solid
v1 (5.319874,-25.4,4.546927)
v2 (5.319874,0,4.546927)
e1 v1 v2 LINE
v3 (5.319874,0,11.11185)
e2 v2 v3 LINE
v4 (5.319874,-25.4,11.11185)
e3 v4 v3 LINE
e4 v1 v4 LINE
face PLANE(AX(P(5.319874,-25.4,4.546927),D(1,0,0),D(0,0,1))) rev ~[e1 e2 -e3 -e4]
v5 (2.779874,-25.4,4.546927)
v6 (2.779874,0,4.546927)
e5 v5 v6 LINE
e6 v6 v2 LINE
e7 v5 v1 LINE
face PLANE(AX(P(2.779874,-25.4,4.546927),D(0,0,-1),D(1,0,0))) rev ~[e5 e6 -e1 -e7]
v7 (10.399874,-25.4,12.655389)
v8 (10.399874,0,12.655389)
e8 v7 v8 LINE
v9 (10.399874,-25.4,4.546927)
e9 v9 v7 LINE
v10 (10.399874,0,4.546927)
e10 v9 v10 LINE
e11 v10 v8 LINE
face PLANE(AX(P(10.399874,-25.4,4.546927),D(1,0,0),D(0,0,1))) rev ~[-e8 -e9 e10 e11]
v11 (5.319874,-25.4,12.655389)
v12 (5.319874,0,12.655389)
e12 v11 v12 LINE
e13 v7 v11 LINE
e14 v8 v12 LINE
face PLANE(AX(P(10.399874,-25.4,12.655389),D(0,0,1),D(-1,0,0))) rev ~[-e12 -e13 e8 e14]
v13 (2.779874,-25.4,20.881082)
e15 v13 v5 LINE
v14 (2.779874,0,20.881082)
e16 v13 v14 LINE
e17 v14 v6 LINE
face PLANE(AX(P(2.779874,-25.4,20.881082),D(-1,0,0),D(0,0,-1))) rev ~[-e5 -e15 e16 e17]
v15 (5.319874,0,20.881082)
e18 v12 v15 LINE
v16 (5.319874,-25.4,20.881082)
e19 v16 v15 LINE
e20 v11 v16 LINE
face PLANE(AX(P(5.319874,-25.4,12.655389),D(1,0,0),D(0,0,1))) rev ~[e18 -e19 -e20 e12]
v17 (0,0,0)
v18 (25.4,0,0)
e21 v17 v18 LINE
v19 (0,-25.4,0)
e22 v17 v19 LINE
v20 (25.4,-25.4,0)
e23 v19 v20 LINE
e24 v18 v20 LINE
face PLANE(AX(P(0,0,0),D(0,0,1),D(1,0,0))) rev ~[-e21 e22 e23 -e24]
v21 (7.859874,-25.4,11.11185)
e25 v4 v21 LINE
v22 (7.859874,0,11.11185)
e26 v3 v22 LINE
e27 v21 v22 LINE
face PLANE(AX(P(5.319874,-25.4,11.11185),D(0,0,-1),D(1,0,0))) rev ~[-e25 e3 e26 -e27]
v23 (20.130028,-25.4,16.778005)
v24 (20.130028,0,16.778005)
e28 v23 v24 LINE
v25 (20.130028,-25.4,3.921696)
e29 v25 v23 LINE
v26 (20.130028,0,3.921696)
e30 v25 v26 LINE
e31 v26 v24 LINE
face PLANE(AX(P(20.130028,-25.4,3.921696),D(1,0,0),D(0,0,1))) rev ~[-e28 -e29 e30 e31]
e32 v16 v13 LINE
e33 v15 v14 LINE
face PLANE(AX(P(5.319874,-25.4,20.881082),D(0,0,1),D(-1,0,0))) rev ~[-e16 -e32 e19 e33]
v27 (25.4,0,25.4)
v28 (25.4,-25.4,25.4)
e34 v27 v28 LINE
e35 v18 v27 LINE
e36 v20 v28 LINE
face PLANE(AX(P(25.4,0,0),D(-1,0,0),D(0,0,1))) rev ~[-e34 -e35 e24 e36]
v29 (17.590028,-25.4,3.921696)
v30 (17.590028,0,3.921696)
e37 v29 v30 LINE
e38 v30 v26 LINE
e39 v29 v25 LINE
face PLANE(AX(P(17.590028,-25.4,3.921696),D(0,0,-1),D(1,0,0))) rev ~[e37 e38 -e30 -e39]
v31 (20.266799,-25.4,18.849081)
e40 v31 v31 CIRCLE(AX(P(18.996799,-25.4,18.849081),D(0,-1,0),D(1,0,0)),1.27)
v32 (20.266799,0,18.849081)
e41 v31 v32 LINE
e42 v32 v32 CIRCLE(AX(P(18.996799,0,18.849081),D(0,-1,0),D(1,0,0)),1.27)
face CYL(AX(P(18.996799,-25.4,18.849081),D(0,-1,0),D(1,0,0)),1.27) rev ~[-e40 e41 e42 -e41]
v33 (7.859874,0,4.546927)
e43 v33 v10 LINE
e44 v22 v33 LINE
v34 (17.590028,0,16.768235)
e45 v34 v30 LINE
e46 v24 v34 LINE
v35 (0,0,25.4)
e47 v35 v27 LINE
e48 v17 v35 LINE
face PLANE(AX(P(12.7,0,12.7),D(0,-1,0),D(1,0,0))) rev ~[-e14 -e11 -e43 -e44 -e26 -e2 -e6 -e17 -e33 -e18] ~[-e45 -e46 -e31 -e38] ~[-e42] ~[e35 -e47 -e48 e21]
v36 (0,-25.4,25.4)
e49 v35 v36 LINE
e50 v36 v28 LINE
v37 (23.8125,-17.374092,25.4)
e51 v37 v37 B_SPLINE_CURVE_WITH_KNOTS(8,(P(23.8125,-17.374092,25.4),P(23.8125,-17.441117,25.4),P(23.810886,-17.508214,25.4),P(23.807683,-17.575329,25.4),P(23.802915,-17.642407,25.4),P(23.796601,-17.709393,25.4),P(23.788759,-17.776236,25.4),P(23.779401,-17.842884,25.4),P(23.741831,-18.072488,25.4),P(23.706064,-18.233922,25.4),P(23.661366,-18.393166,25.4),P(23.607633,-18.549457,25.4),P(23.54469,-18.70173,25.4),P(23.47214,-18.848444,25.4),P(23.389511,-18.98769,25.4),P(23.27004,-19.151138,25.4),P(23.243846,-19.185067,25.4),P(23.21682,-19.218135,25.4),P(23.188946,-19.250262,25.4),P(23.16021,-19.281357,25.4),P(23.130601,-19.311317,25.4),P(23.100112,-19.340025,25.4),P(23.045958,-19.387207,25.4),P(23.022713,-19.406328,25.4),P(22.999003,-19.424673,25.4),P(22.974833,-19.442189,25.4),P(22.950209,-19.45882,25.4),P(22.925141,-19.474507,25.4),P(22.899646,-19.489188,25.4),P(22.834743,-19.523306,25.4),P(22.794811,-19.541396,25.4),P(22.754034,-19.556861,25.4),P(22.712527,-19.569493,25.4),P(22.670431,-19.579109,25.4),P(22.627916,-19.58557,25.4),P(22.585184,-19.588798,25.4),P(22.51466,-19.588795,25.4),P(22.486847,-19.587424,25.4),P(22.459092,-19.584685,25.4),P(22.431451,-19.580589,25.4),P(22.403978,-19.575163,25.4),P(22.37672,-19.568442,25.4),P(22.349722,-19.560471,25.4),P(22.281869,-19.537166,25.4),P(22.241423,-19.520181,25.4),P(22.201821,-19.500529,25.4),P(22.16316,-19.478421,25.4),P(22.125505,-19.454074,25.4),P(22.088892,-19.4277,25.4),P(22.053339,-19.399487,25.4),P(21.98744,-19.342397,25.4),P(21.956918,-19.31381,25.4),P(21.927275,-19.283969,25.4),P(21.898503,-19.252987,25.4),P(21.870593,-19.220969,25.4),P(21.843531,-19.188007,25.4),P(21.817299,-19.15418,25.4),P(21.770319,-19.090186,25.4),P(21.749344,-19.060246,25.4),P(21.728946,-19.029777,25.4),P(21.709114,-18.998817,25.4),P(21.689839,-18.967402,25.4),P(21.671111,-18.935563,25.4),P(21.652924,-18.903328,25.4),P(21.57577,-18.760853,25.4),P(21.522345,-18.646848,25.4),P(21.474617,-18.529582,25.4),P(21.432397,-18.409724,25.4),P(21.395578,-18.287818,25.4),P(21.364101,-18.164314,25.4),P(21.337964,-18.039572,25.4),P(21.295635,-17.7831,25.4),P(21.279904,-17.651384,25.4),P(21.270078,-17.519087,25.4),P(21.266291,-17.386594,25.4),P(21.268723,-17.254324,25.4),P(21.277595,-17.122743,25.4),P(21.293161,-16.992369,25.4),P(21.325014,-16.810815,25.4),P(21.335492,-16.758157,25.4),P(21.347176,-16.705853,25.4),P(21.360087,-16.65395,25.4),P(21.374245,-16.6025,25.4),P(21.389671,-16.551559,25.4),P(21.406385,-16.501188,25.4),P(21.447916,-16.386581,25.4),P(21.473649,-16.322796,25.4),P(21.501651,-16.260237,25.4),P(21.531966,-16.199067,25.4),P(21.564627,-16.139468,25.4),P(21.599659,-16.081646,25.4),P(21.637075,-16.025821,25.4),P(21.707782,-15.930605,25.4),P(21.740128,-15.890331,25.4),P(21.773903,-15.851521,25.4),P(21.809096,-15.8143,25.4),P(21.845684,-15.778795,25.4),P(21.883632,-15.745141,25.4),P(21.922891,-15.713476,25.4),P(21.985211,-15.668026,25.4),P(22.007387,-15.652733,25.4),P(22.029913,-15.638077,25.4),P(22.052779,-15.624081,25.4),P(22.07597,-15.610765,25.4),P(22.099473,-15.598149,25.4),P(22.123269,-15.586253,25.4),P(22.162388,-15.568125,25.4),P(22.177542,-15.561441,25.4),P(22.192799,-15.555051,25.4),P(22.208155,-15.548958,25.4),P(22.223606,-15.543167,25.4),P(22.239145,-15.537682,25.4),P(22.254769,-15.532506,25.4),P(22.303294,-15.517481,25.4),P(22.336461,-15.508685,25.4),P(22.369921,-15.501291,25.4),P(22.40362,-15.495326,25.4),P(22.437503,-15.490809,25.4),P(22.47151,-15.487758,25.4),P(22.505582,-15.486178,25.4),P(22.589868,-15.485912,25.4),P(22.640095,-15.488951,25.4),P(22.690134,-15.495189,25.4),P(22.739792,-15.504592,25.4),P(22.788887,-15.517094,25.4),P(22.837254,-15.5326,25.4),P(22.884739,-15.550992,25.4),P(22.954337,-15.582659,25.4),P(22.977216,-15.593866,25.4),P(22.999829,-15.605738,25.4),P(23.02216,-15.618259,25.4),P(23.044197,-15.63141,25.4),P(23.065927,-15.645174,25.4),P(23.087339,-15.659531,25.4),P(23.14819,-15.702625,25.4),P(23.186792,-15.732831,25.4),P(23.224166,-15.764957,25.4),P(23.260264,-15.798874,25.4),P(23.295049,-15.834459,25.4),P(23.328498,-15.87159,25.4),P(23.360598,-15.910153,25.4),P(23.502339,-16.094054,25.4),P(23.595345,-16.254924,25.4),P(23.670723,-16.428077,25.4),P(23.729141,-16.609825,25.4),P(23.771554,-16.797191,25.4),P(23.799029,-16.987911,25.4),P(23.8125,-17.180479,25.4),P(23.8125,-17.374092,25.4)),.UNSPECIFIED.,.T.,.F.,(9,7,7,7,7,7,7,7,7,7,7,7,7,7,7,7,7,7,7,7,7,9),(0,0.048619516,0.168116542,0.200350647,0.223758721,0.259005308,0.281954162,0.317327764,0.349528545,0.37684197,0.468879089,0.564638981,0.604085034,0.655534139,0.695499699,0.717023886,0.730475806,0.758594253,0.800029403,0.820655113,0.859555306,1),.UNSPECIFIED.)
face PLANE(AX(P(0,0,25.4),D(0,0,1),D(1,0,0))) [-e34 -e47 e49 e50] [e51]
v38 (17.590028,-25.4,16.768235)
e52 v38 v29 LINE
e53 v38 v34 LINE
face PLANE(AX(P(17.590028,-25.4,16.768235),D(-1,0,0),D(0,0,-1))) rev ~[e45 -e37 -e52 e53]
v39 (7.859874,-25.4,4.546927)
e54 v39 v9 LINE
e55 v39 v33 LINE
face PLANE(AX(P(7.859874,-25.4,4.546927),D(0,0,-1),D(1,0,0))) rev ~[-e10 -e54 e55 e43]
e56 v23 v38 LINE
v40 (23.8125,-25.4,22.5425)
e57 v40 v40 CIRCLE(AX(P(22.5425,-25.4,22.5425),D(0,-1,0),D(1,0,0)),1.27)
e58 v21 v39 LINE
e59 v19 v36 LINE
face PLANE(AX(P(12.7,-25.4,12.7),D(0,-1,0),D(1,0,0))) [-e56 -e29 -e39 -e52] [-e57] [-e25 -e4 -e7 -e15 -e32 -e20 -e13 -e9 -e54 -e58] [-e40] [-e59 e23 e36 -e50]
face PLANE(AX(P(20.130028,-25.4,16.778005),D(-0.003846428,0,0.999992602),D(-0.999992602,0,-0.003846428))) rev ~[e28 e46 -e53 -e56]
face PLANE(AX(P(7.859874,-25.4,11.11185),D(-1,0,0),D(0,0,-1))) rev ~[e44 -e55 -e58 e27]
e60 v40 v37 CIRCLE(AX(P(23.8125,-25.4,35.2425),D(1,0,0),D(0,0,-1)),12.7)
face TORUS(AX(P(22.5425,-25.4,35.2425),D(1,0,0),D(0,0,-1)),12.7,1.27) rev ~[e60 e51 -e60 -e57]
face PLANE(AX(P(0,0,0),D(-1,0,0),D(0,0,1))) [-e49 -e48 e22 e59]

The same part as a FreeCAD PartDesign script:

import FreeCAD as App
import Part
import Sketcher
Q = App.Units.Quantity


def add_polygon(sketch, points):
    """Adds a closed chain of lines whose ends are joined by coincident constraints."""
    first, n = sketch.GeometryCount, len(points)
    for a, b in zip(points, points[1:] + points[:1]):
        sketch.addGeometry(Part.LineSegment(App.Vector(*a, 0), App.Vector(*b, 0)), False)
    for i in range(n):
        sketch.addConstraint(Sketcher.Constraint("Coincident", first + i, 2, first + (i + 1) % n, 1))

doc = App.newDocument("Part")
body = doc.addObject("PartDesign::Body", "Body")

# Sketch on XZ plane
sketch1 = body.newObject("Sketcher::SketchObject", "Sketch")
sketch1.AttachmentSupport = (doc.getObject("XZ_Plane"), [""])
sketch1.MapMode = "FlatFace"
add_polygon(sketch1, [(0, 25), (0, 0), (25, 0), (25, 25)])  # lines 0-3
sketch1.addConstraint([
    Sketcher.Constraint("Vertical", 0),
    Sketcher.Constraint("Horizontal", 1),
    Sketcher.Constraint("Vertical", 2),
    Sketcher.Constraint("Horizontal", 3),
    Sketcher.Constraint("Coincident", 0, 2, -1, 1),
    Sketcher.Constraint("Equal", 3, 0),
    Sketcher.Constraint("DistanceX", 1, 1, 1, 2, Q("1 in")),
])
pad1 = body.newObject("PartDesign::Pad", "Pad")
pad1.Profile = sketch1
pad1.Length = Q("1 in")

# Sketch on XZ plane
sketch2 = body.newObject("Sketcher::SketchObject", "Sketch001")
sketch2.AttachmentSupport = (doc.getObject("XZ_Plane"), [""])
sketch2.MapMode = "FlatFace"
sketch2.AttachmentOffset = App.Placement(App.Vector(0, 0, 1 * 25.4), App.Rotation())
add_polygon(sketch2, [(10.4, 12.7), (5.3, 12.7), (5.3, 20.9), (2.8, 20.9), (2.8, 4.5), (5.3, 4.5), (5.3, 11.1), (7.9, 11.1), (7.9, 4.5), (10.4, 4.5)])  # lines 0-9
add_polygon(sketch2, [(20.1, 16.8), (17.6, 16.8), (17.6, 3.9), (20.1, 3.9)])  # lines 10-13
sketch2.addGeometry(Part.Circle(App.Vector(19, 18.8, 0), App.Vector(0, 0, 1), 1.3), False)  # 14
sketch2.addConstraint([
    Sketcher.Constraint("Horizontal", 0),
    Sketcher.Constraint("Vertical", 1),
    Sketcher.Constraint("Horizontal", 2),
    Sketcher.Constraint("Vertical", 3),
    Sketcher.Constraint("Horizontal", 4),
    Sketcher.Constraint("Vertical", 5),
    Sketcher.Constraint("Horizontal", 6),
    Sketcher.Constraint("Vertical", 7),
    Sketcher.Constraint("Horizontal", 8),
    Sketcher.Constraint("Vertical", 9),
    Sketcher.Constraint("Vertical", 11),
    Sketcher.Constraint("Horizontal", 12),
    Sketcher.Constraint("Vertical", 13),
    Sketcher.Constraint("Horizontal", 4, 2, 7, 2),
    Sketcher.Constraint("Vertical", 1, 2, 4, 2),
    Sketcher.Constraint("Equal", 4, 6),
    Sketcher.Constraint("Equal", 6, 8),
    Sketcher.Constraint("Equal", 8, 12),
    Sketcher.Constraint("Diameter", 14, Q("0.1 in")),
    Sketcher.Constraint("DistanceX", 0, 2, 0, 1, Q("0.2 in")),
    Sketcher.Constraint("DistanceY", 14, 3, 1, 2, Q("0.08 in")),
    Sketcher.Constraint("DistanceY", 11, 2, 11, 1, Q("12.846539 mm")),
    Sketcher.Constraint("DistanceY", 13, 1, 13, 2, Q("12.856309 mm")),
    Sketcher.Constraint("DistanceX", -1, 1, 14, 3, Q("18.996799 mm")),
    Sketcher.Constraint("DistanceY", 1, 1, 1, 2, Q("8.225693 mm")),
    Sketcher.Constraint("DistanceY", 3, 2, 3, 1, Q("16.334155 mm")),
    Sketcher.Constraint("DistanceY", 5, 1, 5, 2, Q("6.564923 mm")),
    Sketcher.Constraint("DistanceY", -1, 1, 14, 3, Q("18.849081 mm")),
    Sketcher.Constraint("DistanceX", -1, 1, 10, 2, Q("17.590028 mm")),
    Sketcher.Constraint("DistanceY", 11, 2, 8, 2, Q("0.625231 mm")),
    Sketcher.Constraint("DistanceX", -1, 1, 0, 2, Q("5.319874 mm")),
])
pocket1 = body.newObject("PartDesign::Pocket", "Pocket")
pocket1.Profile = sketch2
pocket1.Length = Q("1 in")

# Sketch on XZ plane
sketch3 = body.newObject("Sketcher::SketchObject", "Sketch002")
sketch3.AttachmentSupport = (doc.getObject("XZ_Plane"), [""])
sketch3.MapMode = "FlatFace"
sketch3.AttachmentOffset = App.Placement(App.Vector(0, 0, 1 * 25.4), App.Rotation())
sketch3.addGeometry(Part.Circle(App.Vector(22.5, 22.5, 0), App.Vector(0, 0, 1), 1.3), False)
sketch3.addGeometry(Part.LineSegment(App.Vector(22.5, 35.2, 0), App.Vector(32.5, 35.2, 0)), True)  # axis
sketch3.addConstraint([
    Sketcher.Constraint("Horizontal", 1),
    Sketcher.Constraint("Vertical", 0, 3, 1, 1),
    Sketcher.Constraint("Diameter", 0, Q("0.1 in")),
    Sketcher.Constraint("DistanceY", 0, 3, 1, 1, Q("0.5 in")),
    Sketcher.Constraint("DistanceX", 1, 1, 1, 2, Q("10 mm")),
    Sketcher.Constraint("DistanceX", -1, 1, 0, 3, Q("0.8875 in")),
    Sketcher.Constraint("DistanceY", -1, 1, 0, 3, Q("0.8875 in")),
])
groove = body.newObject("PartDesign::Groove", "Groove")
groove.Profile = sketch3
groove.ReferenceAxis = (sketch3, ["Axis0"])
groove.Angle = 360

doc.recompute()
